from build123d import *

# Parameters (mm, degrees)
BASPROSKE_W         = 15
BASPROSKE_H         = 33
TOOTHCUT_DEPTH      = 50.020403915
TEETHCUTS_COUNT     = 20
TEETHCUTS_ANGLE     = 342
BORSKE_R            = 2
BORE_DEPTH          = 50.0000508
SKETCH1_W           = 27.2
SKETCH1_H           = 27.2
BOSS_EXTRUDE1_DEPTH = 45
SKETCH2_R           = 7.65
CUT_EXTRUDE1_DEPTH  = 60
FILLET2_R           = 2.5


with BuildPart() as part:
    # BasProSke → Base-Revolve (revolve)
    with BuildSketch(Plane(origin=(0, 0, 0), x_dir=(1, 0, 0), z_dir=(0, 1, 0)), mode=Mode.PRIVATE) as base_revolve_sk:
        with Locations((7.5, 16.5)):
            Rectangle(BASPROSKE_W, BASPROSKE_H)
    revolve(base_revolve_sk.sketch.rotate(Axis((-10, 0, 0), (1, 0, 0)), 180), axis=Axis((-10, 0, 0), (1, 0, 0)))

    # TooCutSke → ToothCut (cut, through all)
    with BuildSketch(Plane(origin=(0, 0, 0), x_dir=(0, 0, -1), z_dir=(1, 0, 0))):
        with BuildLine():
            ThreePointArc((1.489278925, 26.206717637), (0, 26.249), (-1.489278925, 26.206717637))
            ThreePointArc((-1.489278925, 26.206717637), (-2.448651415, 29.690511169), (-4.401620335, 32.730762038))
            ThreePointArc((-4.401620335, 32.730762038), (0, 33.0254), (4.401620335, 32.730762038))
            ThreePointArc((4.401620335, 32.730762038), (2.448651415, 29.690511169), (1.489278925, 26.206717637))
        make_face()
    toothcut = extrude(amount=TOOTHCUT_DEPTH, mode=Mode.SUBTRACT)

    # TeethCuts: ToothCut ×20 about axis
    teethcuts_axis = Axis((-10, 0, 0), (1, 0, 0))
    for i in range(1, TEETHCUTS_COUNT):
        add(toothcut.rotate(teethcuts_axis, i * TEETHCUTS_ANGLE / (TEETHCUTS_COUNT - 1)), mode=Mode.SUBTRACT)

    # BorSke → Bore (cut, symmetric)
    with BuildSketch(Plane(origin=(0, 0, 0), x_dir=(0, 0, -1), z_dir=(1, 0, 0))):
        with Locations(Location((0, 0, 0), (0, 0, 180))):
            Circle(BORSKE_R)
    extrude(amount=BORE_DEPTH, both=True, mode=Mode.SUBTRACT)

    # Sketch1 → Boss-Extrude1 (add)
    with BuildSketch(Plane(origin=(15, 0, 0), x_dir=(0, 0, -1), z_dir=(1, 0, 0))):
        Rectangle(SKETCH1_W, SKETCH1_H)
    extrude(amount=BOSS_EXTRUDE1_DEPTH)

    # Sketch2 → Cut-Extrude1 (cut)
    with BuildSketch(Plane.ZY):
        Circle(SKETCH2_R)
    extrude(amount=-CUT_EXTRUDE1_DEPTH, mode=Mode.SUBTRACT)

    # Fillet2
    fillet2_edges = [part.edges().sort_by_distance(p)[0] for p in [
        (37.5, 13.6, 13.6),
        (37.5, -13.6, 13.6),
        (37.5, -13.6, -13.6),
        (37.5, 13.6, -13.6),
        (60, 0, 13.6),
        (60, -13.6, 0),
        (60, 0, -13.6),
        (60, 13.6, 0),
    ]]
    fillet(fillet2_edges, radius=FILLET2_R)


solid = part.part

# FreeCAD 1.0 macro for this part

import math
import FreeCAD as App
import Part
import Sketcher

V = App.Vector
Q = App.Units.Quantity


def edges_at(feature, points):
    """Names of the edges that pass closest to the given points."""
    edges = feature.Shape.Edges
    near = lambda p: min(range(len(edges)), key=lambda i: edges[i].distToShape(Part.Vertex(*p))[0])
    return sorted({f"Edge{near(p) + 1}" for p in points})

doc = App.newDocument("Part")
params = doc.addObject("Spreadsheet::Sheet", "Params")
for row, (alias, value) in enumerate([
    ("sketch1_width", "15 mm"),
    ("sketch1_height", "33 mm"),
    ("revolution_angle", "360 deg"),
    ("sketch2_radius", "12 mm"),
    ("sketch3_diameter", "4 mm"),
    ("pocket2_length", "100.000102 mm"),
    ("sketch4_width", "27.2 mm"),
    ("pad1_length", "45 mm"),
    ("sketch5_diameter", "15.3 mm"),
    ("pocket3_length", "60 mm"),
    ("fillet_radius", "2.5 mm"),
], start=1):
    params.set(f"A{row}", alias)
    params.set(f"B{row}", "=" + value)
    params.setAlias(f"B{row}", alias)

body = doc.addObject("PartDesign::Body", "Body")

sketch1 = body.newObject("Sketcher::SketchObject", "Sketch")
sketch1.AttachmentSupport = (doc.getObject("XZ_Plane"), [""])
sketch1.MapMode = "FlatFace"
sketch1.addGeometry(Part.LineSegment(V(0, -33, 0), V(0, 0, 0)), False)
sketch1.addGeometry(Part.LineSegment(V(0, 0, 0), V(15, 0, 0)), False)
sketch1.addGeometry(Part.LineSegment(V(15, 0, 0), V(15, -33, 0)), False)
sketch1.addGeometry(Part.LineSegment(V(15, -33, 0), V(0, -33, 0)), False)
sketch1.addConstraint(Sketcher.Constraint("Coincident", 0, 2, 1, 1))
sketch1.addConstraint(Sketcher.Constraint("Coincident", 1, 2, 2, 1))
sketch1.addConstraint(Sketcher.Constraint("Coincident", 2, 2, 3, 1))
sketch1.addConstraint(Sketcher.Constraint("Coincident", 3, 2, 0, 1))
sketch1.addConstraint(Sketcher.Constraint("Vertical", 0))
sketch1.addConstraint(Sketcher.Constraint("Horizontal", 1))
sketch1.addConstraint(Sketcher.Constraint("Vertical", 2))
sketch1.addConstraint(Sketcher.Constraint("Horizontal", 3))
sketch1.addConstraint(Sketcher.Constraint("Coincident", 0, 2, -1, 1))
sketch1.addConstraint(Sketcher.Constraint("DistanceX", 1, 1, 1, 2, Q("15 mm")))
sketch1.addConstraint(Sketcher.Constraint("DistanceY", 0, 1, 0, 2, Q("33 mm")))
sketch1.setExpression("Constraints[9]", "Params.sketch1_width")
sketch1.setExpression("Constraints[10]", "Params.sketch1_height")
revolution = body.newObject("PartDesign::Revolution", "Revolution")
revolution.Profile = sketch1
revolution.ReferenceAxis = (sketch1, ["H_Axis"])
revolution.setExpression("Angle", "Params.revolution_angle")

sketch2 = body.newObject("Sketcher::SketchObject", "Sketch001")
sketch2.AttachmentSupport = (doc.getObject("YZ_Plane"), [""])
sketch2.MapMode = "FlatFace"
sketch2.addGeometry(Part.ArcOfCircle(Part.Circle(V(0, 0, 0), V(0, 0, 1), 26.2), math.radians(-3.25), math.radians(3.25)), False)
sketch2.addGeometry(Part.ArcOfCircle(Part.Circle(V(24.8, -13.4, 0), V(0, 0, 1), 12), math.radians(49), math.radians(83)), False)
sketch2.addGeometry(Part.ArcOfCircle(Part.Circle(V(0, 0, 0), V(0, 0, 1), 33), math.radians(-7.66), math.radians(7.66)), False)
sketch2.addGeometry(Part.ArcOfCircle(Part.Circle(V(24.8, 13.4, 0), V(0, 0, 1), 12), math.radians(-83), math.radians(-49)), False)
sketch2.addConstraint(Sketcher.Constraint("Coincident", 0, 1, 1, 2))
sketch2.addConstraint(Sketcher.Constraint("Coincident", 1, 1, 2, 1))
sketch2.addConstraint(Sketcher.Constraint("Coincident", 2, 2, 3, 2))
sketch2.addConstraint(Sketcher.Constraint("Coincident", 3, 1, 0, 2))
sketch2.addConstraint(Sketcher.Constraint("Coincident", 0, 3, -1, 1))
sketch2.addConstraint(Sketcher.Constraint("Coincident", 2, 3, -1, 1))
sketch2.addConstraint(Sketcher.Constraint("Equal", 1, 3))
sketch2.addConstraint(Sketcher.Constraint("Symmetric", 1, 3, 3, 3, -1))
sketch2.addConstraint(Sketcher.Constraint("Radius", 1, Q("12 mm")))
sketch2.addConstraint(Sketcher.Constraint("Radius", 0, Q("26.249 mm")))
sketch2.addConstraint(Sketcher.Constraint("Radius", 2, Q("33.0254 mm")))
sketch2.addConstraint(Sketcher.Constraint("DistanceY", 0, 1, 2, 2, Q("5.890899 mm")))
sketch2.addConstraint(Sketcher.Constraint("DistanceX", -1, 1, 1, 3, Q("24.798951 mm")))
sketch2.setExpression("Constraints[8]", "Params.sketch2_radius")
pocket1 = body.newObject("PartDesign::Pocket", "Pocket")
pocket1.Profile = sketch2
pocket1.Type = "ThroughAll"
pocket1.Reversed = True
doc.recompute()

polarpattern = body.newObject("PartDesign::PolarPattern", "PolarPattern")
polarpattern.Originals = [pocket1]
polarpattern.Axis = (doc.getObject("X_Axis"), [""])
polarpattern.Angle = 360
polarpattern.Occurrences = 20
body.Tip = polarpattern

sketch3 = body.newObject("Sketcher::SketchObject", "Sketch002")
sketch3.AttachmentSupport = (doc.getObject("YZ_Plane"), [""])
sketch3.MapMode = "FlatFace"
sketch3.addGeometry(Part.Circle(V(0, 0, 0), V(0, 0, 1), 2), False)
sketch3.addConstraint(Sketcher.Constraint("Coincident", 0, 3, -1, 1))
sketch3.addConstraint(Sketcher.Constraint("Diameter", 0, Q("4 mm")))
sketch3.setExpression("Constraints[1]", "Params.sketch3_diameter")
pocket2 = body.newObject("PartDesign::Pocket", "Pocket001")
pocket2.Profile = sketch3
pocket2.setExpression("Length", "Params.pocket2_length")
pocket2.Midplane = True

sketch4 = body.newObject("Sketcher::SketchObject", "Sketch003")
sketch4.AttachmentSupport = (doc.getObject("YZ_Plane"), [""])
sketch4.MapMode = "FlatFace"
sketch4.AttachmentOffset = App.Placement(V(0, 0, 15), App.Rotation())
sketch4.addGeometry(Part.LineSegment(V(14, 14, 0), V(-14, 14, 0)), False)
sketch4.addGeometry(Part.LineSegment(V(-14, 14, 0), V(-14, -14, 0)), False)
sketch4.addGeometry(Part.LineSegment(V(-14, -14, 0), V(14, -14, 0)), False)
sketch4.addGeometry(Part.LineSegment(V(14, -14, 0), V(14, 14, 0)), False)
sketch4.addConstraint(Sketcher.Constraint("Coincident", 0, 2, 1, 1))
sketch4.addConstraint(Sketcher.Constraint("Coincident", 1, 2, 2, 1))
sketch4.addConstraint(Sketcher.Constraint("Coincident", 2, 2, 3, 1))
sketch4.addConstraint(Sketcher.Constraint("Coincident", 3, 2, 0, 1))
sketch4.addConstraint(Sketcher.Constraint("Horizontal", 0))
sketch4.addConstraint(Sketcher.Constraint("Vertical", 1))
sketch4.addConstraint(Sketcher.Constraint("Horizontal", 2))
sketch4.addConstraint(Sketcher.Constraint("Vertical", 3))
sketch4.addConstraint(Sketcher.Constraint("Symmetric", 0, 2, 2, 2, -1, 1))
sketch4.addConstraint(Sketcher.Constraint("Equal", 2, 1))
sketch4.addConstraint(Sketcher.Constraint("DistanceX", 0, 2, 0, 1, Q("27.2 mm")))
sketch4.setExpression("Constraints[10]", "Params.sketch4_width")
pad1 = body.newObject("PartDesign::Pad", "Pad")
pad1.Profile = sketch4
pad1.setExpression("Length", "Params.pad1_length")

sketch5 = body.newObject("Sketcher::SketchObject", "Sketch004")
sketch5.AttachmentSupport = (doc.getObject("YZ_Plane"), [""])
sketch5.MapMode = "FlatFace"
sketch5.addGeometry(Part.Circle(V(0, 0, 0), V(0, 0, 1), 8), False)
sketch5.addConstraint(Sketcher.Constraint("Coincident", 0, 3, -1, 1))
sketch5.addConstraint(Sketcher.Constraint("Diameter", 0, Q("15.3 mm")))
sketch5.setExpression("Constraints[1]", "Params.sketch5_diameter")
pocket3 = body.newObject("PartDesign::Pocket", "Pocket002")
pocket3.Profile = sketch5
pocket3.setExpression("Length", "Params.pocket3_length")
pocket3.Reversed = True
doc.recompute()

fillet = body.newObject("PartDesign::Fillet", "Fillet")
fillet.Base = (pocket3, edges_at(pocket3, [
    (37.5, 13.6, 13.6),
    (37.5, -13.6, 13.6),
    (37.5, -13.6, -13.6),
    (37.5, 13.6, -13.6),
    (60, 0, 13.6),
    (60, -13.6, 0),
    (60, 0, -13.6),
    (60, 13.6, 0),
]))
fillet.setExpression("Radius", "Params.fillet_radius")

doc.recompute()
